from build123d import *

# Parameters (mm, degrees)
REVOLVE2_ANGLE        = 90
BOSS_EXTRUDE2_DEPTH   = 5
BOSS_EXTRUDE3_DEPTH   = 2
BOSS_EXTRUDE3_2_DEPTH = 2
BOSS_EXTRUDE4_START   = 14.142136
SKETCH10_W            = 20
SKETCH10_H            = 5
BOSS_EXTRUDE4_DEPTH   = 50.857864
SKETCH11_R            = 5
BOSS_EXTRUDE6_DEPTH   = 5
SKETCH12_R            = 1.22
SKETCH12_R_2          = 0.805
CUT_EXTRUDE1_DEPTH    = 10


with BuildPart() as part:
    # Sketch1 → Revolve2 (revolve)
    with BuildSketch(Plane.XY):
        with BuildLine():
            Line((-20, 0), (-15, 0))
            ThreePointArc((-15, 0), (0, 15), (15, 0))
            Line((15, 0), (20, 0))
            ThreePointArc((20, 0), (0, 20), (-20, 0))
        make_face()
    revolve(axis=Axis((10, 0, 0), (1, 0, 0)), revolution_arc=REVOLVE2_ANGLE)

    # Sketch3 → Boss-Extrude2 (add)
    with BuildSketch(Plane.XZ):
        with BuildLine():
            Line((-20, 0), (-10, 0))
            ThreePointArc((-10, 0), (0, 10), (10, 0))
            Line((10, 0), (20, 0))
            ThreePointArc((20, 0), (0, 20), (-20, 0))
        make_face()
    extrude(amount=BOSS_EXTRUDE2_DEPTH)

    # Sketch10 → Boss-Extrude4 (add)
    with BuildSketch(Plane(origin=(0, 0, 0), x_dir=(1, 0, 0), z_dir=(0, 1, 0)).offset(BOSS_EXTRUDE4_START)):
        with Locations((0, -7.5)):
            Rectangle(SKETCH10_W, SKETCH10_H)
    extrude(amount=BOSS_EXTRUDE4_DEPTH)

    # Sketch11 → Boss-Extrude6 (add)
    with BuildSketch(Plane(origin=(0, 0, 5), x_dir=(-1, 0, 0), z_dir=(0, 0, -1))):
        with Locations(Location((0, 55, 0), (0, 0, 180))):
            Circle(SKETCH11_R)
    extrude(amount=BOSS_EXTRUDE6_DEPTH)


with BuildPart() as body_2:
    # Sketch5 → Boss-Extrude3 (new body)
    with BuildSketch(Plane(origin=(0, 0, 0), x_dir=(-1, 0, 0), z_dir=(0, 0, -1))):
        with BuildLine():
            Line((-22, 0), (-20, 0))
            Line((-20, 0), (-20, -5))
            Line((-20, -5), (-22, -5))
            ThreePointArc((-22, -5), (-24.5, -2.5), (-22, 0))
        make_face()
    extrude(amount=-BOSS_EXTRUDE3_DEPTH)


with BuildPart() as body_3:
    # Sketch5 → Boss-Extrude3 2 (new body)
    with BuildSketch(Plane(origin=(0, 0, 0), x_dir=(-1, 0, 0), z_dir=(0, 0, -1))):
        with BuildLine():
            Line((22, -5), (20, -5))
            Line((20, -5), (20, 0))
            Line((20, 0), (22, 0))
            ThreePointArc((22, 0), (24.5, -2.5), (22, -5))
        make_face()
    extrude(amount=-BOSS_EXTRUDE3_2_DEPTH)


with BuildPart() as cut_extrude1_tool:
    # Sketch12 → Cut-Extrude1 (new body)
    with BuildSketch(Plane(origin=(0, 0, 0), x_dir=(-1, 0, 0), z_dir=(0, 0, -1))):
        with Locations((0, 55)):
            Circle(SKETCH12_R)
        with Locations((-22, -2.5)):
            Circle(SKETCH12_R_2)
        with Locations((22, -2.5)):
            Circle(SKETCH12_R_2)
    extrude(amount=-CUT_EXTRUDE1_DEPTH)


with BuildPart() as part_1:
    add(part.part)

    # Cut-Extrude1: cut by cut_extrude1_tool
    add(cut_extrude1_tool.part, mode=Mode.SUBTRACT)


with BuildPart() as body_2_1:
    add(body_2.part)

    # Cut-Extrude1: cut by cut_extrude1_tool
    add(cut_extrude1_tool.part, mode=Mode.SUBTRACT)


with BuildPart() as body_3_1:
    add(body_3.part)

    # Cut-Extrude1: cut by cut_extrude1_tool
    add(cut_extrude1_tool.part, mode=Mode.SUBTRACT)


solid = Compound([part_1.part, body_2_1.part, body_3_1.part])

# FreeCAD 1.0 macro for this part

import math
import FreeCAD as App
import Part
import Sketcher

V = App.Vector


def add_polygon(sketch, points):
    """Adds a closed chain of lines whose ends are joined by coincident constraints."""
    first, n = sketch.GeometryCount, len(points)
    for a, b in zip(points, points[1:] + points[:1]):
        sketch.addGeometry(Part.LineSegment(App.Vector(*a, 0), App.Vector(*b, 0)), False)
    for i in range(n):
        sketch.addConstraint(Sketcher.Constraint("Coincident", first + i, 2, first + (i + 1) % n, 1))

doc = App.newDocument("Part")
body = doc.addObject("PartDesign::Body", "Body")

# Sketch on XY plane
sketch1 = body.newObject("Sketcher::SketchObject", "Sketch")
sketch1.AttachmentSupport = (doc.getObject("XY_Plane"), [""])
sketch1.MapMode = "FlatFace"
sketch1.addGeometry([
    Part.LineSegment(V(-20, 0, 0), V(-15, 0, 0)),
    Part.ArcOfCircle(Part.Circle(V(0, 0, 0), V(0, 0, 1), 15), math.radians(0), math.radians(180)),
    Part.LineSegment(V(15, 0, 0), V(20, 0, 0)),
    Part.ArcOfCircle(Part.Circle(V(0, 0, 0), V(0, 0, 1), 20), math.radians(0), math.radians(180)),
], False)
sketch1.addConstraint([
    Sketcher.Constraint("Coincident", 0, 2, 1, 2),
    Sketcher.Constraint("Coincident", 1, 1, 2, 1),
    Sketcher.Constraint("Coincident", 2, 2, 3, 1),
    Sketcher.Constraint("Coincident", 3, 2, 0, 1),
    Sketcher.Constraint("Horizontal", 0),
    Sketcher.Constraint("Horizontal", 2),
    Sketcher.Constraint("Coincident", 1, 3, -1, 1),
    Sketcher.Constraint("Coincident", 3, 3, -1, 1),
    Sketcher.Constraint("PointOnObject", 0, 2, -1),
    Sketcher.Constraint("PointOnObject", 1, 1, -1),
    Sketcher.Constraint("Radius", 1, 15.0),
    Sketcher.Constraint("Radius", 3, 20.0),
])
revolution = body.newObject("PartDesign::Revolution", "Revolution")
revolution.Profile = sketch1
revolution.ReferenceAxis = (sketch1, ["H_Axis"])
revolution.Angle = 90

# Sketch on XZ plane
sketch2 = body.newObject("Sketcher::SketchObject", "Sketch001")
sketch2.AttachmentSupport = (doc.getObject("XZ_Plane"), [""])
sketch2.MapMode = "FlatFace"
sketch2.addGeometry([
    Part.LineSegment(V(-20, 0, 0), V(-10, 0, 0)),
    Part.ArcOfCircle(Part.Circle(V(0, 0, 0), V(0, 0, 1), 10), math.radians(0), math.radians(180)),
    Part.LineSegment(V(10, 0, 0), V(20, 0, 0)),
    Part.ArcOfCircle(Part.Circle(V(0, 0, 0), V(0, 0, 1), 20), math.radians(0), math.radians(180)),
], False)
sketch2.addConstraint([
    Sketcher.Constraint("Coincident", 0, 2, 1, 2),
    Sketcher.Constraint("Coincident", 1, 1, 2, 1),
    Sketcher.Constraint("Coincident", 2, 2, 3, 1),
    Sketcher.Constraint("Coincident", 3, 2, 0, 1),
    Sketcher.Constraint("Horizontal", 0),
    Sketcher.Constraint("Horizontal", 2),
    Sketcher.Constraint("Coincident", 1, 3, -1, 1),
    Sketcher.Constraint("Coincident", 3, 3, -1, 1),
    Sketcher.Constraint("PointOnObject", 0, 2, -1),
    Sketcher.Constraint("PointOnObject", 1, 1, -1),
    Sketcher.Constraint("Radius", 1, 10.0),
    Sketcher.Constraint("Radius", 3, 20.0),
])
pad1 = body.newObject("PartDesign::Pad", "Pad")
pad1.Profile = sketch2
pad1.Length = 5

# Sketch on XZ plane
sketch3 = body.newObject("Sketcher::SketchObject", "Sketch002")
sketch3.AttachmentSupport = (doc.getObject("XZ_Plane"), [""])
sketch3.MapMode = "FlatFace"
sketch3.AttachmentOffset = App.Placement(V(0, 0, -14.142136), App.Rotation())
add_polygon(sketch3, [(-10, 5), (-10, 10), (10, 10), (10, 5)])  # lines 0-3
sketch3.addConstraint([
    Sketcher.Constraint("Vertical", 0),
    Sketcher.Constraint("Horizontal", 1),
    Sketcher.Constraint("Vertical", 2),
    Sketcher.Constraint("Horizontal", 3),
    Sketcher.Constraint("DistanceX", 1, 1, 1, 2, 20.0),
    Sketcher.Constraint("DistanceY", 0, 1, 0, 2, 5.0),
    Sketcher.Constraint("DistanceX", 0, 2, -1, 1, 10.0),
    Sketcher.Constraint("DistanceY", -1, 1, 0, 2, 10.0),
])
pad2 = body.newObject("PartDesign::Pad", "Pad001")
pad2.Profile = sketch3
pad2.Length = 50.857864
pad2.Reversed = True

# Sketch on XY plane
sketch4 = body.newObject("Sketcher::SketchObject", "Sketch003")
sketch4.AttachmentSupport = (doc.getObject("XY_Plane"), [""])
sketch4.MapMode = "FlatFace"
sketch4.AttachmentOffset = App.Placement(V(0, 0, 5), App.Rotation())
sketch4.addGeometry(Part.Circle(V(0, 55, 0), V(0, 0, 1), 5), False)
sketch4.addConstraint([
    Sketcher.Constraint("PointOnObject", 0, 3, -2),
    Sketcher.Constraint("Diameter", 0, 10.0),
    Sketcher.Constraint("DistanceY", -1, 1, 0, 3, 55.0),
])
pad3 = body.newObject("PartDesign::Pad", "Pad002")
pad3.Profile = sketch4
pad3.Length = 5
pad3.Reversed = True
body2 = doc.addObject("PartDesign::Body", "Body001")

# Sketch on XY plane
sketch5 = body2.newObject("Sketcher::SketchObject", "Sketch004")
sketch5.AttachmentSupport = (doc.getObject("XY_Plane001"), [""])
sketch5.MapMode = "FlatFace"
sketch5.addGeometry([
    Part.LineSegment(V(20, 0, 0), V(22, 0, 0)),
    Part.ArcOfCircle(Part.Circle(V(22, -2.5, 0), V(0, 0, 1), 2.5), math.radians(-90), math.radians(90)),
    Part.LineSegment(V(22, -5, 0), V(20, -5, 0)),
    Part.LineSegment(V(20, -5, 0), V(20, 0, 0)),
], False)
sketch5.addConstraint([
    Sketcher.Constraint("Tangent", 0, 2, 1, 2),
    Sketcher.Constraint("Tangent", 1, 1, 2, 1),
    Sketcher.Constraint("Coincident", 2, 2, 3, 1),
    Sketcher.Constraint("Coincident", 3, 2, 0, 1),
    Sketcher.Constraint("Horizontal", 0),
    Sketcher.Constraint("Horizontal", 2),
    Sketcher.Constraint("Vertical", 3),
    Sketcher.Constraint("PointOnObject", 0, 2, -1),
    Sketcher.Constraint("Radius", 1, 2.5),
    Sketcher.Constraint("DistanceX", 0, 1, 0, 2, 2.0),
    Sketcher.Constraint("DistanceX", -1, 1, 1, 3, 22.0),
])
pad4 = body2.newObject("PartDesign::Pad", "Pad003")
pad4.Profile = sketch5
pad4.Length = 2
body3 = doc.addObject("PartDesign::Body", "Body002")

# Sketch on XY plane
sketch6 = body3.newObject("Sketcher::SketchObject", "Sketch005")
sketch6.AttachmentSupport = (doc.getObject("XY_Plane002"), [""])
sketch6.MapMode = "FlatFace"
sketch6.addGeometry([
    Part.LineSegment(V(-20, -5, 0), V(-22, -5, 0)),
    Part.ArcOfCircle(Part.Circle(V(-22, -2.5, 0), V(0, 0, 1), 2.5), math.radians(90), math.radians(270)),
    Part.LineSegment(V(-22, 0, 0), V(-20, 0, 0)),
    Part.LineSegment(V(-20, 0, 0), V(-20, -5, 0)),
], False)
sketch6.addConstraint([
    Sketcher.Constraint("Tangent", 0, 2, 1, 2),
    Sketcher.Constraint("Tangent", 1, 1, 2, 1),
    Sketcher.Constraint("Coincident", 2, 2, 3, 1),
    Sketcher.Constraint("Coincident", 3, 2, 0, 1),
    Sketcher.Constraint("Horizontal", 0),
    Sketcher.Constraint("Horizontal", 2),
    Sketcher.Constraint("Vertical", 3),
    Sketcher.Constraint("PointOnObject", 1, 1, -1),
    Sketcher.Constraint("Radius", 1, 2.5),
    Sketcher.Constraint("DistanceX", 0, 2, 0, 1, 2.0),
    Sketcher.Constraint("DistanceX", 1, 3, -1, 1, 22.0),
])
pad5 = body3.newObject("PartDesign::Pad", "Pad004")
pad5.Profile = sketch6
pad5.Length = 2
body4 = doc.addObject("PartDesign::Body", "Body003")
body4.AllowCompound = True

# Sketch on XY plane
sketch7 = body4.newObject("Sketcher::SketchObject", "Sketch006")
sketch7.AttachmentSupport = (doc.getObject("XY_Plane003"), [""])
sketch7.MapMode = "FlatFace"
sketch7.addGeometry([
    Part.Circle(V(0, 55, 0), V(0, 0, 1), 1.2),
    Part.Circle(V(22, -2.5, 0), V(0, 0, 1), 0.8),
    Part.Circle(V(-22, -2.5, 0), V(0, 0, 1), 0.8),
], False)
sketch7.addConstraint([
    Sketcher.Constraint("Equal", 1, 2),
    Sketcher.Constraint("Symmetric", 1, 3, 2, 3, -2),
    Sketcher.Constraint("PointOnObject", 0, 3, -2),
    Sketcher.Constraint("Diameter", 0, 2.44),
    Sketcher.Constraint("Diameter", 1, 1.61),
    Sketcher.Constraint("DistanceY", -1, 1, 0, 3, 55.0),
    Sketcher.Constraint("DistanceX", -1, 1, 1, 3, 22.0),
    Sketcher.Constraint("DistanceY", 1, 3, -1, 1, 2.5),
])
pad6 = body4.newObject("PartDesign::Pad", "Pad005")
pad6.Profile = sketch7
pad6.Length = 10
doc.recompute()

body5 = doc.addObject("PartDesign::Body", "Body004")
body5.BaseFeature = body4
boolean = body.newObject("PartDesign::Boolean", "Boolean")
boolean.Type = "Cut"
boolean.addObjects([body5])
doc.recompute()

body6 = doc.addObject("PartDesign::Body", "Body005")
body6.BaseFeature = body4
boolean2 = body2.newObject("PartDesign::Boolean", "Boolean001")
boolean2.Type = "Cut"
boolean2.addObjects([body6])
doc.recompute()

boolean3 = body3.newObject("PartDesign::Boolean", "Boolean002")
boolean3.Type = "Cut"
boolean3.addObjects([body4])

doc.recompute()
